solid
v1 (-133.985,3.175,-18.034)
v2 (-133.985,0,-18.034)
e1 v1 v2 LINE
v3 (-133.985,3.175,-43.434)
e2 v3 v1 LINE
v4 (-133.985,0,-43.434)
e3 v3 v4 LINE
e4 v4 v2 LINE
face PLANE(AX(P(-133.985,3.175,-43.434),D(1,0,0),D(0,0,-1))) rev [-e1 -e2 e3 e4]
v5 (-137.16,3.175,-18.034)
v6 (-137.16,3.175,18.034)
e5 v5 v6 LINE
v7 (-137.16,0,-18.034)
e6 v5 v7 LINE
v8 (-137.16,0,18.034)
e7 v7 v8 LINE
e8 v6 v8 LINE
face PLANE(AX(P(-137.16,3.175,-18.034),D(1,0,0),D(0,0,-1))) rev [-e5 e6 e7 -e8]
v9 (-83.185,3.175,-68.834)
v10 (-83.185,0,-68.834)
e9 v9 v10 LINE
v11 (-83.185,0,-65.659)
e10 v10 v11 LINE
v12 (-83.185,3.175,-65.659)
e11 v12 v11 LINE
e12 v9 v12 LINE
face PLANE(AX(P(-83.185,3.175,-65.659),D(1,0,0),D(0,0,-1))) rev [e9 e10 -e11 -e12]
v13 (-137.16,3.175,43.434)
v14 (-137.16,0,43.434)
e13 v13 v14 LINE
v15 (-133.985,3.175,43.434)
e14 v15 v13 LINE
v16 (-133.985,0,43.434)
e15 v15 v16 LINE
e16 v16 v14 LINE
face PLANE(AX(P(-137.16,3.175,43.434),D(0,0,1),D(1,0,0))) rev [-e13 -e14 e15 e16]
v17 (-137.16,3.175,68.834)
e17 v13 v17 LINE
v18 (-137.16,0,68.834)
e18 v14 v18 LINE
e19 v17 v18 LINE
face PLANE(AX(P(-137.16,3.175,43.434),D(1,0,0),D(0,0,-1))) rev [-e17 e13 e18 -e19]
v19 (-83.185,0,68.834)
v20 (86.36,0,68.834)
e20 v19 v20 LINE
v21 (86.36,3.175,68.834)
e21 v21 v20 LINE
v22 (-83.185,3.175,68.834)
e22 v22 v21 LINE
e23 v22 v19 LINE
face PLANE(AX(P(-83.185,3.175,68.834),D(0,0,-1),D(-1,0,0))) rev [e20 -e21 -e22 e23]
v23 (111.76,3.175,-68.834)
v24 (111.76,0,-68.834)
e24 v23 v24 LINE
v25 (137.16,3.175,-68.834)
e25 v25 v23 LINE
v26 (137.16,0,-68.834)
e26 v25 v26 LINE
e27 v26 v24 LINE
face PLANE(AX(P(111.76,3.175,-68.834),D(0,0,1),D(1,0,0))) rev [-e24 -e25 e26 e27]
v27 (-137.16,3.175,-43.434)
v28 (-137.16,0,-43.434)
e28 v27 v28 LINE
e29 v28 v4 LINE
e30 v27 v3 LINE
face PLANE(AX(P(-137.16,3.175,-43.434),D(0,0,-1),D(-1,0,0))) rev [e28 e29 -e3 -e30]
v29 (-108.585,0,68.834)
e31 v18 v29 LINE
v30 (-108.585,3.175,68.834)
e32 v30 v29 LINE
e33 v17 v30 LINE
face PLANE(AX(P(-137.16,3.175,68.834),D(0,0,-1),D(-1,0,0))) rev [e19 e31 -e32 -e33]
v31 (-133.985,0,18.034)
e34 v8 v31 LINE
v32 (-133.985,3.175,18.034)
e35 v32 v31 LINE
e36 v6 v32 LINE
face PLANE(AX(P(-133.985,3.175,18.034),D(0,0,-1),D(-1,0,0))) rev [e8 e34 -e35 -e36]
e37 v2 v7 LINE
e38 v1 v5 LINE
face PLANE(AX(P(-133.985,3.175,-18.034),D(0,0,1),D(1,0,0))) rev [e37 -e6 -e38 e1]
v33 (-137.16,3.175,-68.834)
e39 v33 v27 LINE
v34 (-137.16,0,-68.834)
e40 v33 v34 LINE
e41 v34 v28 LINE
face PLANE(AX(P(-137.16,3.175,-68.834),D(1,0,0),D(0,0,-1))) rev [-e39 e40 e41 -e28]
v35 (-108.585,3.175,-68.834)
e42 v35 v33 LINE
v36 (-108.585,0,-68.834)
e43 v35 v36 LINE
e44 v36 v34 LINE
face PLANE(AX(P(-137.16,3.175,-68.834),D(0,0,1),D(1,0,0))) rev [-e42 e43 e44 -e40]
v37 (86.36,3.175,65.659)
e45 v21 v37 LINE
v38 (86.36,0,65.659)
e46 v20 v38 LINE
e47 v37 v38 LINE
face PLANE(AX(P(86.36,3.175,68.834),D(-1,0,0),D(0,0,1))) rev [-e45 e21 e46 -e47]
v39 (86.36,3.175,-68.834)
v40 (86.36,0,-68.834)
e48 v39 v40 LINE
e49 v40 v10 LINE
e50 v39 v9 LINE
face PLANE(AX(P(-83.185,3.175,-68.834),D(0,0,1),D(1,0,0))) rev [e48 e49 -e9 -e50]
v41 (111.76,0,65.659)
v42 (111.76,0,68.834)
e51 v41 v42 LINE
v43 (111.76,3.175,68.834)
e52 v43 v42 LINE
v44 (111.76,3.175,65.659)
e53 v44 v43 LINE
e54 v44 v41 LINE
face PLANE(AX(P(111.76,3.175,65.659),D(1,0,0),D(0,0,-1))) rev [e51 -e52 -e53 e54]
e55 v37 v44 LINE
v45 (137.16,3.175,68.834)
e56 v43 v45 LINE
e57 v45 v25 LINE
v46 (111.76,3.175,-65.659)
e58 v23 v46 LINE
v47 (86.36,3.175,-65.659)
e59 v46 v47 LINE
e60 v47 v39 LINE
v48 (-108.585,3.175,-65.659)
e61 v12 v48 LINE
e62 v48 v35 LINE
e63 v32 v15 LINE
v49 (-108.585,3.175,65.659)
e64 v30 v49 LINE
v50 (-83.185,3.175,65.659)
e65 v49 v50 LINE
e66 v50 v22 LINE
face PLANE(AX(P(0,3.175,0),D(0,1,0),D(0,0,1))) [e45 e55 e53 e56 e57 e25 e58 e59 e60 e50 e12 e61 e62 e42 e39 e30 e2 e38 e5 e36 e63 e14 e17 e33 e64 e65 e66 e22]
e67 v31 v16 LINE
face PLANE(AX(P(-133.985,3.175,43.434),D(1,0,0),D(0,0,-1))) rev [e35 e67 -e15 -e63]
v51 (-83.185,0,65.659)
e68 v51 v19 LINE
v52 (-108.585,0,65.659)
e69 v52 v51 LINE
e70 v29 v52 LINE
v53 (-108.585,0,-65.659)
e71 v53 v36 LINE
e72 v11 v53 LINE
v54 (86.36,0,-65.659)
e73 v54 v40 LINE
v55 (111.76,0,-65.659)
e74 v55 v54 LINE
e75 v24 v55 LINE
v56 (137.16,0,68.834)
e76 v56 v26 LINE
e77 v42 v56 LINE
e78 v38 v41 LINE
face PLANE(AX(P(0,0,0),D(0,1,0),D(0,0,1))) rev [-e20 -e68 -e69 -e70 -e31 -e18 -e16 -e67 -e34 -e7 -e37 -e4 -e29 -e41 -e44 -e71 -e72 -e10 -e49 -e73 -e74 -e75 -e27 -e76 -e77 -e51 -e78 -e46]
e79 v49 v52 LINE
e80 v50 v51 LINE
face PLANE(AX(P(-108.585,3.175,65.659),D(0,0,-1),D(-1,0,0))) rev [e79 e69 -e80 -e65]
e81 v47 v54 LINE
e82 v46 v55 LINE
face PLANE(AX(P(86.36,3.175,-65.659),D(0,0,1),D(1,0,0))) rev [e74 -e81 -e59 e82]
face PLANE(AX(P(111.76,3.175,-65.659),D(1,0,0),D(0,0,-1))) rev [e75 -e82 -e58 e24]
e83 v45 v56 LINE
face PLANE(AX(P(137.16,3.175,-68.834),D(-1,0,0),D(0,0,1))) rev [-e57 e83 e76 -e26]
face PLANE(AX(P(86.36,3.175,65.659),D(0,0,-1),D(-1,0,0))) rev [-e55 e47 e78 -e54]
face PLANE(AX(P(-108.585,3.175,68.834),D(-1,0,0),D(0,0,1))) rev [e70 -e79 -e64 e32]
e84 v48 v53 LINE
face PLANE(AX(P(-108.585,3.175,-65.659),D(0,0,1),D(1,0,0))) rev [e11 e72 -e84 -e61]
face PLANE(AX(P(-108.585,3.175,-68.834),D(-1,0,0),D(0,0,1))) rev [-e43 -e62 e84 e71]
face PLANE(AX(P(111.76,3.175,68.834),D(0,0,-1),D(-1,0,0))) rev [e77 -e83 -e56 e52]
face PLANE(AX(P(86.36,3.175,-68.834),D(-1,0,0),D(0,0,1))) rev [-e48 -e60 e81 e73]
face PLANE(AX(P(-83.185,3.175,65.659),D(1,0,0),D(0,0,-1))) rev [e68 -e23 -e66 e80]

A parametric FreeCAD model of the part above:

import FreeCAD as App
import Part
import Sketcher
Q = App.Units.Quantity

doc = App.newDocument("Part")
body = doc.addObject("PartDesign::Body", "Body")

sketch1 = body.newObject("Sketcher::SketchObject", "Sketch")
sketch1.AttachmentSupport = (doc.getObject("XZ_Plane"), [""])
sketch1.MapMode = "FlatFace"
sketch1.addGeometry(Part.LineSegment(App.Vector(-108.6, -68.8, 0), App.Vector(-137.2, -68.8, 0)), False)
sketch1.addGeometry(Part.LineSegment(App.Vector(-137.2, -68.8, 0), App.Vector(-137.2, -43.4, 0)), False)
sketch1.addGeometry(Part.LineSegment(App.Vector(-137.2, -43.4, 0), App.Vector(-134, -43.4, 0)), False)
sketch1.addGeometry(Part.LineSegment(App.Vector(-134, -43.4, 0), App.Vector(-134, -18, 0)), False)
sketch1.addGeometry(Part.LineSegment(App.Vector(-134, -18, 0), App.Vector(-137.2, -18, 0)), False)
sketch1.addGeometry(Part.LineSegment(App.Vector(-137.2, -18, 0), App.Vector(-137.2, 18, 0)), False)
sketch1.addGeometry(Part.LineSegment(App.Vector(-137.2, 18, 0), App.Vector(-134, 18, 0)), False)
sketch1.addGeometry(Part.LineSegment(App.Vector(-134, 18, 0), App.Vector(-134, 43.4, 0)), False)
sketch1.addGeometry(Part.LineSegment(App.Vector(-134, 43.4, 0), App.Vector(-137.2, 43.4, 0)), False)
sketch1.addGeometry(Part.LineSegment(App.Vector(-137.2, 43.4, 0), App.Vector(-137.2, 68.8, 0)), False)
sketch1.addGeometry(Part.LineSegment(App.Vector(-137.2, 68.8, 0), App.Vector(-108.6, 68.8, 0)), False)
sketch1.addGeometry(Part.LineSegment(App.Vector(-108.6, 68.8, 0), App.Vector(-108.6, 65.7, 0)), False)
sketch1.addGeometry(Part.LineSegment(App.Vector(-108.6, 65.7, 0), App.Vector(-83.2, 65.7, 0)), False)
sketch1.addGeometry(Part.LineSegment(App.Vector(-83.2, 65.7, 0), App.Vector(-83.2, 68.8, 0)), False)
sketch1.addGeometry(Part.LineSegment(App.Vector(-83.2, 68.8, 0), App.Vector(86.4, 68.8, 0)), False)
sketch1.addGeometry(Part.LineSegment(App.Vector(86.4, 68.8, 0), App.Vector(86.4, 65.7, 0)), False)
sketch1.addGeometry(Part.LineSegment(App.Vector(86.4, 65.7, 0), App.Vector(111.8, 65.7, 0)), False)
sketch1.addGeometry(Part.LineSegment(App.Vector(111.8, 65.7, 0), App.Vector(111.8, 68.8, 0)), False)
sketch1.addGeometry(Part.LineSegment(App.Vector(111.8, 68.8, 0), App.Vector(137.2, 68.8, 0)), False)
sketch1.addGeometry(Part.LineSegment(App.Vector(137.2, 68.8, 0), App.Vector(137.2, -68.8, 0)), False)
sketch1.addGeometry(Part.LineSegment(App.Vector(137.2, -68.8, 0), App.Vector(111.8, -68.8, 0)), False)
sketch1.addGeometry(Part.LineSegment(App.Vector(111.8, -68.8, 0), App.Vector(111.8, -65.7, 0)), False)
sketch1.addGeometry(Part.LineSegment(App.Vector(111.8, -65.7, 0), App.Vector(86.4, -65.7, 0)), False)
sketch1.addGeometry(Part.LineSegment(App.Vector(86.4, -65.7, 0), App.Vector(86.4, -68.8, 0)), False)
sketch1.addGeometry(Part.LineSegment(App.Vector(86.4, -68.8, 0), App.Vector(-83.2, -68.8, 0)), False)
sketch1.addGeometry(Part.LineSegment(App.Vector(-83.2, -68.8, 0), App.Vector(-83.2, -65.7, 0)), False)
sketch1.addGeometry(Part.LineSegment(App.Vector(-83.2, -65.7, 0), App.Vector(-108.6, -65.7, 0)), False)
sketch1.addGeometry(Part.LineSegment(App.Vector(-108.6, -65.7, 0), App.Vector(-108.6, -68.8, 0)), False)
sketch1.addConstraint(Sketcher.Constraint("Coincident", 0, 2, 1, 1))
sketch1.addConstraint(Sketcher.Constraint("Coincident", 1, 2, 2, 1))
sketch1.addConstraint(Sketcher.Constraint("Coincident", 2, 2, 3, 1))
sketch1.addConstraint(Sketcher.Constraint("Coincident", 3, 2, 4, 1))
sketch1.addConstraint(Sketcher.Constraint("Coincident", 4, 2, 5, 1))
sketch1.addConstraint(Sketcher.Constraint("Coincident", 5, 2, 6, 1))
sketch1.addConstraint(Sketcher.Constraint("Coincident", 6, 2, 7, 1))
sketch1.addConstraint(Sketcher.Constraint("Coincident", 7, 2, 8, 1))
sketch1.addConstraint(Sketcher.Constraint("Coincident", 8, 2, 9, 1))
sketch1.addConstraint(Sketcher.Constraint("Coincident", 9, 2, 10, 1))
sketch1.addConstraint(Sketcher.Constraint("Coincident", 10, 2, 11, 1))
sketch1.addConstraint(Sketcher.Constraint("Coincident", 11, 2, 12, 1))
sketch1.addConstraint(Sketcher.Constraint("Coincident", 12, 2, 13, 1))
sketch1.addConstraint(Sketcher.Constraint("Coincident", 13, 2, 14, 1))
sketch1.addConstraint(Sketcher.Constraint("Coincident", 14, 2, 15, 1))
sketch1.addConstraint(Sketcher.Constraint("Coincident", 15, 2, 16, 1))
sketch1.addConstraint(Sketcher.Constraint("Coincident", 16, 2, 17, 1))
sketch1.addConstraint(Sketcher.Constraint("Coincident", 17, 2, 18, 1))
sketch1.addConstraint(Sketcher.Constraint("Coincident", 18, 2, 19, 1))
sketch1.addConstraint(Sketcher.Constraint("Coincident", 19, 2, 20, 1))
sketch1.addConstraint(Sketcher.Constraint("Coincident", 20, 2, 21, 1))
sketch1.addConstraint(Sketcher.Constraint("Coincident", 21, 2, 22, 1))
sketch1.addConstraint(Sketcher.Constraint("Coincident", 22, 2, 23, 1))
sketch1.addConstraint(Sketcher.Constraint("Coincident", 23, 2, 24, 1))
sketch1.addConstraint(Sketcher.Constraint("Coincident", 24, 2, 25, 1))
sketch1.addConstraint(Sketcher.Constraint("Coincident", 25, 2, 26, 1))
sketch1.addConstraint(Sketcher.Constraint("Coincident", 26, 2, 27, 1))
sketch1.addConstraint(Sketcher.Constraint("Coincident", 27, 2, 0, 1))
sketch1.addConstraint(Sketcher.Constraint("Horizontal", 0))
sketch1.addConstraint(Sketcher.Constraint("Vertical", 1))
sketch1.addConstraint(Sketcher.Constraint("Horizontal", 2))
sketch1.addConstraint(Sketcher.Constraint("Vertical", 3))
sketch1.addConstraint(Sketcher.Constraint("Horizontal", 4))
sketch1.addConstraint(Sketcher.Constraint("Vertical", 5))
sketch1.addConstraint(Sketcher.Constraint("Horizontal", 6))
sketch1.addConstraint(Sketcher.Constraint("Vertical", 7))
sketch1.addConstraint(Sketcher.Constraint("Horizontal", 8))
sketch1.addConstraint(Sketcher.Constraint("Vertical", 9))
sketch1.addConstraint(Sketcher.Constraint("Horizontal", 10))
sketch1.addConstraint(Sketcher.Constraint("Vertical", 11))
sketch1.addConstraint(Sketcher.Constraint("Horizontal", 12))
sketch1.addConstraint(Sketcher.Constraint("Vertical", 13))
sketch1.addConstraint(Sketcher.Constraint("Horizontal", 14))
sketch1.addConstraint(Sketcher.Constraint("Vertical", 15))
sketch1.addConstraint(Sketcher.Constraint("Horizontal", 16))
sketch1.addConstraint(Sketcher.Constraint("Vertical", 17))
sketch1.addConstraint(Sketcher.Constraint("Horizontal", 18))
sketch1.addConstraint(Sketcher.Constraint("Vertical", 19))
sketch1.addConstraint(Sketcher.Constraint("Horizontal", 20))
sketch1.addConstraint(Sketcher.Constraint("Vertical", 21))
sketch1.addConstraint(Sketcher.Constraint("Horizontal", 22))
sketch1.addConstraint(Sketcher.Constraint("Vertical", 23))
sketch1.addConstraint(Sketcher.Constraint("Horizontal", 24))
sketch1.addConstraint(Sketcher.Constraint("Vertical", 25))
sketch1.addConstraint(Sketcher.Constraint("Horizontal", 26))
sketch1.addConstraint(Sketcher.Constraint("Vertical", 27))
sketch1.addConstraint(Sketcher.Constraint("Symmetric", 0, 2, 18, 2, -1, 1))
sketch1.addConstraint(Sketcher.Constraint("Symmetric", 9, 2, 19, 2, -1, 1))
sketch1.addConstraint(Sketcher.Constraint("Symmetric", 3, 2, 6, 2, -1))
sketch1.addConstraint(Sketcher.Constraint("Symmetric", 17, 2, 20, 2, -1))
sketch1.addConstraint(Sketcher.Constraint("Symmetric", 15, 2, 22, 2, -1))
sketch1.addConstraint(Sketcher.Constraint("Symmetric", 13, 2, 24, 2, -1))
sketch1.addConstraint(Sketcher.Constraint("Symmetric", 11, 2, 26, 2, -1))
sketch1.addConstraint(Sketcher.Constraint("Horizontal", 10, 2, 13, 2))
sketch1.addConstraint(Sketcher.Constraint("Horizontal", 12, 2, 15, 2))
sketch1.addConstraint(Sketcher.Constraint("Vertical", 1, 2, 4, 2))
sketch1.addConstraint(Sketcher.Constraint("Equal", 12, 16))
sketch1.addConstraint(Sketcher.Constraint("Equal", 16, 18))
sketch1.addConstraint(Sketcher.Constraint("Equal", 26, 1))
sketch1.addConstraint(Sketcher.Constraint("Equal", 1, 3))
sketch1.addConstraint(Sketcher.Constraint("Equal", 3, 7))
sketch1.addConstraint(Sketcher.Constraint("Equal", 8, 11))
sketch1.addConstraint(Sketcher.Constraint("DistanceX", 12, 1, 12, 2, Q("1 in")))
sketch1.addConstraint(Sketcher.Constraint("DistanceX", 7, 2, 10, 2, Q("1 in")))
sketch1.addConstraint(Sketcher.Constraint("DistanceY", 5, 1, 5, 2, Q("1.42 in")))
sketch1.addConstraint(Sketcher.Constraint("DistanceX", 0, 2, -1, 1, Q("5.4 in")))
sketch1.addConstraint(Sketcher.Constraint("DistanceX", 0, 2, 0, 1, Q("1.125 in")))
pad1 = body.newObject("PartDesign::Pad", "Pad")
pad1.Profile = sketch1
pad1.Length = Q("0.125 in")
pad1.Reversed = True

doc.recompute()
